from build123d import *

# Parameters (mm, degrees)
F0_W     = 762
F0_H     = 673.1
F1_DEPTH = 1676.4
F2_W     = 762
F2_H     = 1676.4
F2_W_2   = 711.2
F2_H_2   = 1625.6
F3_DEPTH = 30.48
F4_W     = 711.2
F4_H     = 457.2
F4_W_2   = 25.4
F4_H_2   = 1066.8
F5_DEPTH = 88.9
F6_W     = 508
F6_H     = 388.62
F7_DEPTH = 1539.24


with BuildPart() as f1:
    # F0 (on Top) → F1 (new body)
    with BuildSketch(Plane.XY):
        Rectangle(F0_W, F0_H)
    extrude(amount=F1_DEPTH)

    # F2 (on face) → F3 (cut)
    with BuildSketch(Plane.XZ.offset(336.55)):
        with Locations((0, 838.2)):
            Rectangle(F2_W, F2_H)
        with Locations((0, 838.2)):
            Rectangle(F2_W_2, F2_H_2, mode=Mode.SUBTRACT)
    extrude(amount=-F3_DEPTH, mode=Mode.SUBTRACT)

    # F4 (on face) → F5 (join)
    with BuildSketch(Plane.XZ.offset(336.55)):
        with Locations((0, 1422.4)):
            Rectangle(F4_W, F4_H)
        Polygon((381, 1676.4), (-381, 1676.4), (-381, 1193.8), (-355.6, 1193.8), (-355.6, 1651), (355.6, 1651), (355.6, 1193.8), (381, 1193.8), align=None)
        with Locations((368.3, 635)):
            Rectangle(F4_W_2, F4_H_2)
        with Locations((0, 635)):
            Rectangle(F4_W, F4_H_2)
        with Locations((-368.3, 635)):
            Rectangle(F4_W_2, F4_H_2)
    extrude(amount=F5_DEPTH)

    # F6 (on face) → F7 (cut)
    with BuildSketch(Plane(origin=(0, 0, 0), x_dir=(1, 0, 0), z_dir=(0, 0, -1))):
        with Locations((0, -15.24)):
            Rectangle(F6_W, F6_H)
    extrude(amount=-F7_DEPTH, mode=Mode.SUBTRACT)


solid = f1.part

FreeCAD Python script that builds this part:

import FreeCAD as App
import Part
import Sketcher
from FreeCAD import Vector
Q = App.Units.Quantity


def add_polygon(sketch, points):
    """Adds a closed chain of lines whose ends are joined by coincident constraints."""
    first, n = sketch.GeometryCount, len(points)
    for a, b in zip(points, points[1:] + points[:1]):
        sketch.addGeometry(Part.LineSegment(App.Vector(*a, 0), App.Vector(*b, 0)), False)
    for i in range(n):
        sketch.addConstraint(Sketcher.Constraint("Coincident", first + i, 2, first + (i + 1) % n, 1))

doc = App.newDocument("Part")
params = doc.addObject("Spreadsheet::Sheet", "Params")
for row, (alias, value) in enumerate([
    ("sketch1_width", "30 in"),
    ("sketch1_height", "26.5 in"),
    ("pad1_length", "66 in"),
    ("sketch2_width", "30 in"),
    ("sketch2_width2", "28 in"),
    ("sketch2_height", "66 in"),
    ("sketch2_height2", "64 in"),
    ("pocket1_length", "1.2 in"),
    ("sketch3_width", "30 in"),
    ("sketch3_height", "19 in"),
    ("sketch3_height2", "42 in"),
    ("pad2_length", "3.5 in"),
    ("sketch4_width", "20 in"),
    ("sketch4_height", "15.3 in"),
    ("pocket2_length", "60.6 in"),
], start=1):
    params.set(f"A{row}", alias)
    params.set(f"B{row}", "=" + value)
    params.setAlias(f"B{row}", alias)

body = doc.addObject("PartDesign::Body", "Body")

sketch1 = doc.addObject("Sketcher::SketchObject", "Sketch")
body.addObject(sketch1)
sketch1.AttachmentSupport = (doc.XY_Plane, [""])
sketch1.MapMode = "FlatFace"
add_polygon(sketch1, [(-381, 337), (-381, -337), (381, -337), (381, 337)])
sketch1.addConstraint([
    Sketcher.Constraint("Vertical", 0),
    Sketcher.Constraint("Horizontal", 1),
    Sketcher.Constraint("Vertical", 2),
    Sketcher.Constraint("Horizontal", 3),
    Sketcher.Constraint("Symmetric", 0, 2, 2, 2, -1, 1),
    Sketcher.Constraint("DistanceX", 1, 1, 1, 2, Q("30 in")),
    Sketcher.Constraint("DistanceY", 0, 2, 0, 1, Q("26.5 in")),
])
sketch1.setExpression("Constraints[9]", "Params.sketch1_width")
sketch1.setExpression("Constraints[10]", "Params.sketch1_height")
pad1 = doc.addObject("PartDesign::Pad", "Pad")
body.addObject(pad1)
pad1.Profile = sketch1
pad1.setExpression("Length", "Params.pad1_length")

sketch2 = doc.addObject("Sketcher::SketchObject", "Sketch001")
body.addObject(sketch2)
sketch2.AttachmentSupport = (doc.XZ_Plane, [""])
sketch2.MapMode = "FlatFace"
sketch2.AttachmentOffset = App.Placement(Vector(0, 0, 13.25 * 25.4), App.Rotation())
add_polygon(sketch2, [(-381, 1676), (-381, 0), (381, 0), (381, 1676)])
add_polygon(sketch2, [(356, 25), (-356, 25), (-356, 1651), (356, 1651)])
sketch2.addConstraint([
    Sketcher.Constraint("Vertical", 0),
    Sketcher.Constraint("Horizontal", 1),
    Sketcher.Constraint("Vertical", 2),
    Sketcher.Constraint("Horizontal", 3),
    Sketcher.Constraint("Horizontal", 4),
    Sketcher.Constraint("Vertical", 5),
    Sketcher.Constraint("Horizontal", 6),
    Sketcher.Constraint("Vertical", 7),
    Sketcher.Constraint("Symmetric", 0, 2, 1, 2, -1, 1),
    Sketcher.Constraint("DistanceX", 1, 1, 1, 2, Q("30 in")),
    Sketcher.Constraint("DistanceX", 4, 2, 4, 1, Q("28 in")),
    Sketcher.Constraint("DistanceY", 0, 2, 0, 1, Q("66 in")),
    Sketcher.Constraint("DistanceY", 5, 1, 5, 2, Q("64 in")),
    Sketcher.Constraint("DistanceX", 4, 2, -1, 1, Q("14 in")),
    Sketcher.Constraint("DistanceY", -1, 1, 4, 2, Q("1 in")),
])
sketch2.setExpression("Constraints[17]", "Params.sketch2_width")
sketch2.setExpression("Constraints[18]", "Params.sketch2_width2")
sketch2.setExpression("Constraints[19]", "Params.sketch2_height")
sketch2.setExpression("Constraints[20]", "Params.sketch2_height2")
pocket1 = doc.addObject("PartDesign::Pocket", "Pocket")
body.addObject(pocket1)
pocket1.Profile = sketch2
pocket1.setExpression("Length", "Params.pocket1_length")

sketch3 = doc.addObject("Sketcher::SketchObject", "Sketch002")
body.addObject(sketch3)
sketch3.AttachmentSupport = (doc.XZ_Plane, [""])
sketch3.MapMode = "FlatFace"
sketch3.AttachmentOffset = App.Placement(Vector(0, 0, 13.25 * 25.4), App.Rotation())
add_polygon(sketch3, [(381, 1194), (381, 1676), (-381, 1676), (-381, 1194)])
add_polygon(sketch3, [(381, 102), (381, 1168), (-381, 1168), (-381, 102)])
sketch3.addConstraint([
    Sketcher.Constraint("Vertical", 0),
    Sketcher.Constraint("Horizontal", 1),
    Sketcher.Constraint("Vertical", 2),
    Sketcher.Constraint("Horizontal", 3),
    Sketcher.Constraint("Vertical", 4),
    Sketcher.Constraint("Horizontal", 5),
    Sketcher.Constraint("Vertical", 6),
    Sketcher.Constraint("Horizontal", 7),
    Sketcher.Constraint("Vertical", 3, 2, 4, 2),
    Sketcher.Constraint("Vertical", 2, 2, 5, 2),
    Sketcher.Constraint("DistanceX", 1, 2, 1, 1, Q("30 in")),
    Sketcher.Constraint("DistanceY", 0, 1, 0, 2, Q("19 in")),
    Sketcher.Constraint("DistanceY", 4, 1, 4, 2, Q("42 in")),
    Sketcher.Constraint("DistanceX", -1, 1, 0, 2, Q("15 in")),
    Sketcher.Constraint("DistanceY", -1, 1, 0, 2, Q("66 in")),
    Sketcher.Constraint("DistanceY", -1, 1, 4, 2, Q("46 in")),
])
sketch3.setExpression("Constraints[18]", "Params.sketch3_width")
sketch3.setExpression("Constraints[19]", "Params.sketch3_height")
sketch3.setExpression("Constraints[20]", "Params.sketch3_height2")
pad2 = doc.addObject("PartDesign::Pad", "Pad001")
body.addObject(pad2)
pad2.Profile = sketch3
pad2.setExpression("Length", "Params.pad2_length")

sketch4 = doc.addObject("Sketcher::SketchObject", "Sketch003")
body.addObject(sketch4)
sketch4.AttachmentSupport = (doc.XY_Plane, [""])
sketch4.MapMode = "FlatFace"
add_polygon(sketch4, [(-254, -179), (-254, 210), (254, 210), (254, -179)])
sketch4.addConstraint([
    Sketcher.Constraint("Vertical", 0),
    Sketcher.Constraint("Horizontal", 1),
    Sketcher.Constraint("Vertical", 2),
    Sketcher.Constraint("Horizontal", 3),
    Sketcher.Constraint("DistanceX", 1, 1, 1, 2, Q("20 in")),
    Sketcher.Constraint("DistanceY", 0, 1, 0, 2, Q("15.3 in")),
    Sketcher.Constraint("DistanceX", 0, 2, -1, 1, Q("10 in")),
    Sketcher.Constraint("DistanceY", -1, 1, 0, 2, Q("8.25 in")),
])
sketch4.setExpression("Constraints[8]", "Params.sketch4_width")
sketch4.setExpression("Constraints[9]", "Params.sketch4_height")
pocket2 = doc.addObject("PartDesign::Pocket", "Pocket001")
body.addObject(pocket2)
pocket2.Profile = sketch4
pocket2.setExpression("Length", "Params.pocket2_length")
pocket2.Reversed = True

doc.recompute()
